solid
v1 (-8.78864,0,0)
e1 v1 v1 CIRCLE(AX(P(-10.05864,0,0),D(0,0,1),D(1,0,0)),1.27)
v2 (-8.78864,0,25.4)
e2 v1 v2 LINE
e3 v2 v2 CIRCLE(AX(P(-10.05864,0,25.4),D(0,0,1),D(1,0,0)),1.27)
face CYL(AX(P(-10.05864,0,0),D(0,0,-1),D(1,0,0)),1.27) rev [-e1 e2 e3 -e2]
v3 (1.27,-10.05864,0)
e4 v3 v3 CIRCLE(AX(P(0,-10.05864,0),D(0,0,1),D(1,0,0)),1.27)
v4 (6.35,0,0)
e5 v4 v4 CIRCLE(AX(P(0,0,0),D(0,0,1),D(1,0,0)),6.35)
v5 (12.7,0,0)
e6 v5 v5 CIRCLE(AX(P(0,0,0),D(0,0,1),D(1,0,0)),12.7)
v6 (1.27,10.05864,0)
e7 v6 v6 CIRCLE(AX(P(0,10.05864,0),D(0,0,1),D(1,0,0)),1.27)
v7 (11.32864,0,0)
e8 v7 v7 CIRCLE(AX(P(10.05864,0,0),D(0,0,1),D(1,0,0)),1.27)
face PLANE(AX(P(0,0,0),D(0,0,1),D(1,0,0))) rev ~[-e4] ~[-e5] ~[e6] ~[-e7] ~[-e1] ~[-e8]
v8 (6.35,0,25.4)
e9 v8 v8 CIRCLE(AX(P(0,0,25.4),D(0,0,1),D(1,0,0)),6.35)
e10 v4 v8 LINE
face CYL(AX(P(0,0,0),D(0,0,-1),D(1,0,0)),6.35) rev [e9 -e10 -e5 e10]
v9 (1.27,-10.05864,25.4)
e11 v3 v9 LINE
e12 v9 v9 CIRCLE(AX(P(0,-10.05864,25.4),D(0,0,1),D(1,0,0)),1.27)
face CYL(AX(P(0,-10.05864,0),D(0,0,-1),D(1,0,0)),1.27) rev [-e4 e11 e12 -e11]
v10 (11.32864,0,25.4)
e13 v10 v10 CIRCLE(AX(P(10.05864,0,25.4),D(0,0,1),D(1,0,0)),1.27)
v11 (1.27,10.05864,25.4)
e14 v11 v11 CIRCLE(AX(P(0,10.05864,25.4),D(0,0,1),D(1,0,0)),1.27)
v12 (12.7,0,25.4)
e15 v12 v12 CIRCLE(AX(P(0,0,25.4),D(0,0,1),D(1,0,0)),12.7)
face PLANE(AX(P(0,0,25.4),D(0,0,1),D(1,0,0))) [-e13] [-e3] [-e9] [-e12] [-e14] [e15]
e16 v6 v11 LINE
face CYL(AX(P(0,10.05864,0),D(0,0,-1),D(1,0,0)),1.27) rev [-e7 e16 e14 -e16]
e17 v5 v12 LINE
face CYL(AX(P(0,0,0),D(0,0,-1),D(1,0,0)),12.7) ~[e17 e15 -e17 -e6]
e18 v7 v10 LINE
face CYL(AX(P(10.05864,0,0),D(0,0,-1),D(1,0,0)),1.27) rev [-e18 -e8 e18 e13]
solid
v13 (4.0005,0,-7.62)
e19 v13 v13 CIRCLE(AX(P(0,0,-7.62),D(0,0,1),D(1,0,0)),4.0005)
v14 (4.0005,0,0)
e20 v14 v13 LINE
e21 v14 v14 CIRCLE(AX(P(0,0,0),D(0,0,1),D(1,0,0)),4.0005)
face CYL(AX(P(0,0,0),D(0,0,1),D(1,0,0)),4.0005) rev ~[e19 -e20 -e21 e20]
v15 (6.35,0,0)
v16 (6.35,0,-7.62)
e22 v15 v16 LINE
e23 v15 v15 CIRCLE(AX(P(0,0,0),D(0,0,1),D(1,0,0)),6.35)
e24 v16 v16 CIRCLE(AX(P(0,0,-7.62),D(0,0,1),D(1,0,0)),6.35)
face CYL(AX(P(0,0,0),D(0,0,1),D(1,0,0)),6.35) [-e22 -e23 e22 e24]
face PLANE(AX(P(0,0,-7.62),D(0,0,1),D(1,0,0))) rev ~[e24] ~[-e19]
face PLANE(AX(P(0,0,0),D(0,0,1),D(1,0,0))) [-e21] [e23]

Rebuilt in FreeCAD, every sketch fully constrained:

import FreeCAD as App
import Part
import Sketcher
Q = App.Units.Quantity

doc = App.newDocument("Part")
body = doc.addObject("PartDesign::Body", "Body")
body.AllowCompound = True

# Sketch on XY plane
sketch1 = body.newObject("Sketcher::SketchObject", "Sketch")
sketch1.AttachmentSupport = (doc.getObject("XY_Plane"), [""])
sketch1.MapMode = "FlatFace"
sketch1.addGeometry([
    Part.Circle(App.Vector(0, 0, 0), App.Vector(0, 0, 1), 12.7),  # 0
    Part.Circle(App.Vector(0, -10.1, 0), App.Vector(0, 0, 1), 1.3),  # 1
    Part.Circle(App.Vector(-10.1, 0, 0), App.Vector(0, 0, 1), 1.3),  # 2
    Part.Circle(App.Vector(0, 0, 0), App.Vector(0, 0, 1), 6.3),  # 3
    Part.Circle(App.Vector(10.1, 0, 0), App.Vector(0, 0, 1), 1.3),  # 4
    Part.Circle(App.Vector(0, 10.1, 0), App.Vector(0, 0, 1), 1.3),  # 5
], False)
sketch1.addConstraint([
    Sketcher.Constraint("Coincident", 0, 3, -1, 1),
    Sketcher.Constraint("Coincident", 3, 3, -1, 1),
    Sketcher.Constraint("Equal", 1, 2),
    Sketcher.Constraint("Equal", 2, 4),
    Sketcher.Constraint("Equal", 4, 5),
    Sketcher.Constraint("Symmetric", 2, 3, 4, 3, -1, 1),
    Sketcher.Constraint("Symmetric", 1, 3, 5, 3, -1, 1),
    Sketcher.Constraint("PointOnObject", 1, 3, -2),
    Sketcher.Constraint("PointOnObject", 2, 3, -1),
    Sketcher.Constraint("Diameter", 0, Q("1 in")),
    Sketcher.Constraint("Diameter", 1, Q("0.1 in")),
    Sketcher.Constraint("Diameter", 3, Q("0.5 in")),
    Sketcher.Constraint("DistanceY", 1, 3, -1, 1, Q("10.05864 mm")),
    Sketcher.Constraint("DistanceX", 2, 3, -1, 1, Q("10.05864 mm")),
])
pad1 = body.newObject("PartDesign::Pad", "Pad")
pad1.Profile = sketch1
pad1.Length = Q("1 in")

# Sketch on XY plane
sketch2 = body.newObject("Sketcher::SketchObject", "Sketch001")
sketch2.AttachmentSupport = (doc.getObject("XY_Plane"), [""])
sketch2.MapMode = "FlatFace"
sketch2.addGeometry([
    Part.Circle(App.Vector(0, 0, 0), App.Vector(0, 0, 1), 6.3),
    Part.Circle(App.Vector(0, 0, 0), App.Vector(0, 0, 1), 4),
], False)
sketch2.addConstraint([
    Sketcher.Constraint("Coincident", 0, 3, -1, 1),
    Sketcher.Constraint("Coincident", 1, 3, -1, 1),
    Sketcher.Constraint("Diameter", 0, Q("0.5 in")),
    Sketcher.Constraint("Diameter", 1, Q("0.315 in")),
])
pad2 = body.newObject("PartDesign::Pad", "Pad001")
pad2.Profile = sketch2
pad2.Length = Q("0.3 in")
pad2.Reversed = True

doc.recompute()
